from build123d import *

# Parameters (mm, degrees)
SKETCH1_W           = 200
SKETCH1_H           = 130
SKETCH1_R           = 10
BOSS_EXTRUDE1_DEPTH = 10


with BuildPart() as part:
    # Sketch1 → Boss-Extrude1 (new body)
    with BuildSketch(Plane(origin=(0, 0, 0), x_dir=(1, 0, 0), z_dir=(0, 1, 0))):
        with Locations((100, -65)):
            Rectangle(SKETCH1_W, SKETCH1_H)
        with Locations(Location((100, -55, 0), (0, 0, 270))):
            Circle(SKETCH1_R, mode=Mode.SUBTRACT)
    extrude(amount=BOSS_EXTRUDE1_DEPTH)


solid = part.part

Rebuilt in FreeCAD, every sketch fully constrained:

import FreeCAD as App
import Part
import Sketcher

V = App.Vector
Q = App.Units.Quantity


def add_polygon(sketch, points):
    """Adds a closed chain of lines whose ends are joined by coincident constraints."""
    first, n = sketch.GeometryCount, len(points)
    for a, b in zip(points, points[1:] + points[:1]):
        sketch.addGeometry(Part.LineSegment(App.Vector(*a, 0), App.Vector(*b, 0)), False)
    for i in range(n):
        sketch.addConstraint(Sketcher.Constraint("Coincident", first + i, 2, first + (i + 1) % n, 1))

doc = App.newDocument("Part")
body = doc.addObject("PartDesign::Body", "Body")

# Sketch on XZ plane
sketch1 = body.newObject("Sketcher::SketchObject", "Sketch")
sketch1.AttachmentSupport = (doc.getObject("XZ_Plane"), [""])
sketch1.MapMode = "FlatFace"
add_polygon(sketch1, [(0, 0), (0, 130), (200, 130), (200, 0)])  # lines 0-3
sketch1.addGeometry(Part.Circle(V(100, 55, 0), V(0, 0, 1), 10), False)  # 4
sketch1.addConstraint([
    Sketcher.Constraint("Vertical", 0),
    Sketcher.Constraint("Horizontal", 1),
    Sketcher.Constraint("Vertical", 2),
    Sketcher.Constraint("Horizontal", 3),
    Sketcher.Constraint("Coincident", 3, 2, -1, 1),
    Sketcher.Constraint("Diameter", 4, Q("20 mm")),
    Sketcher.Constraint("DistanceX", 1, 1, 1, 2, Q("200 mm")),
    Sketcher.Constraint("DistanceY", 0, 1, 0, 2, Q("130 mm")),
    Sketcher.Constraint("DistanceX", -1, 1, 4, 3, Q("100 mm")),
    Sketcher.Constraint("DistanceY", -1, 1, 4, 3, Q("55 mm")),
])
pad1 = body.newObject("PartDesign::Pad", "Pad")
pad1.Profile = sketch1
pad1.Length = 10
pad1.Reversed = True

doc.recompute()
